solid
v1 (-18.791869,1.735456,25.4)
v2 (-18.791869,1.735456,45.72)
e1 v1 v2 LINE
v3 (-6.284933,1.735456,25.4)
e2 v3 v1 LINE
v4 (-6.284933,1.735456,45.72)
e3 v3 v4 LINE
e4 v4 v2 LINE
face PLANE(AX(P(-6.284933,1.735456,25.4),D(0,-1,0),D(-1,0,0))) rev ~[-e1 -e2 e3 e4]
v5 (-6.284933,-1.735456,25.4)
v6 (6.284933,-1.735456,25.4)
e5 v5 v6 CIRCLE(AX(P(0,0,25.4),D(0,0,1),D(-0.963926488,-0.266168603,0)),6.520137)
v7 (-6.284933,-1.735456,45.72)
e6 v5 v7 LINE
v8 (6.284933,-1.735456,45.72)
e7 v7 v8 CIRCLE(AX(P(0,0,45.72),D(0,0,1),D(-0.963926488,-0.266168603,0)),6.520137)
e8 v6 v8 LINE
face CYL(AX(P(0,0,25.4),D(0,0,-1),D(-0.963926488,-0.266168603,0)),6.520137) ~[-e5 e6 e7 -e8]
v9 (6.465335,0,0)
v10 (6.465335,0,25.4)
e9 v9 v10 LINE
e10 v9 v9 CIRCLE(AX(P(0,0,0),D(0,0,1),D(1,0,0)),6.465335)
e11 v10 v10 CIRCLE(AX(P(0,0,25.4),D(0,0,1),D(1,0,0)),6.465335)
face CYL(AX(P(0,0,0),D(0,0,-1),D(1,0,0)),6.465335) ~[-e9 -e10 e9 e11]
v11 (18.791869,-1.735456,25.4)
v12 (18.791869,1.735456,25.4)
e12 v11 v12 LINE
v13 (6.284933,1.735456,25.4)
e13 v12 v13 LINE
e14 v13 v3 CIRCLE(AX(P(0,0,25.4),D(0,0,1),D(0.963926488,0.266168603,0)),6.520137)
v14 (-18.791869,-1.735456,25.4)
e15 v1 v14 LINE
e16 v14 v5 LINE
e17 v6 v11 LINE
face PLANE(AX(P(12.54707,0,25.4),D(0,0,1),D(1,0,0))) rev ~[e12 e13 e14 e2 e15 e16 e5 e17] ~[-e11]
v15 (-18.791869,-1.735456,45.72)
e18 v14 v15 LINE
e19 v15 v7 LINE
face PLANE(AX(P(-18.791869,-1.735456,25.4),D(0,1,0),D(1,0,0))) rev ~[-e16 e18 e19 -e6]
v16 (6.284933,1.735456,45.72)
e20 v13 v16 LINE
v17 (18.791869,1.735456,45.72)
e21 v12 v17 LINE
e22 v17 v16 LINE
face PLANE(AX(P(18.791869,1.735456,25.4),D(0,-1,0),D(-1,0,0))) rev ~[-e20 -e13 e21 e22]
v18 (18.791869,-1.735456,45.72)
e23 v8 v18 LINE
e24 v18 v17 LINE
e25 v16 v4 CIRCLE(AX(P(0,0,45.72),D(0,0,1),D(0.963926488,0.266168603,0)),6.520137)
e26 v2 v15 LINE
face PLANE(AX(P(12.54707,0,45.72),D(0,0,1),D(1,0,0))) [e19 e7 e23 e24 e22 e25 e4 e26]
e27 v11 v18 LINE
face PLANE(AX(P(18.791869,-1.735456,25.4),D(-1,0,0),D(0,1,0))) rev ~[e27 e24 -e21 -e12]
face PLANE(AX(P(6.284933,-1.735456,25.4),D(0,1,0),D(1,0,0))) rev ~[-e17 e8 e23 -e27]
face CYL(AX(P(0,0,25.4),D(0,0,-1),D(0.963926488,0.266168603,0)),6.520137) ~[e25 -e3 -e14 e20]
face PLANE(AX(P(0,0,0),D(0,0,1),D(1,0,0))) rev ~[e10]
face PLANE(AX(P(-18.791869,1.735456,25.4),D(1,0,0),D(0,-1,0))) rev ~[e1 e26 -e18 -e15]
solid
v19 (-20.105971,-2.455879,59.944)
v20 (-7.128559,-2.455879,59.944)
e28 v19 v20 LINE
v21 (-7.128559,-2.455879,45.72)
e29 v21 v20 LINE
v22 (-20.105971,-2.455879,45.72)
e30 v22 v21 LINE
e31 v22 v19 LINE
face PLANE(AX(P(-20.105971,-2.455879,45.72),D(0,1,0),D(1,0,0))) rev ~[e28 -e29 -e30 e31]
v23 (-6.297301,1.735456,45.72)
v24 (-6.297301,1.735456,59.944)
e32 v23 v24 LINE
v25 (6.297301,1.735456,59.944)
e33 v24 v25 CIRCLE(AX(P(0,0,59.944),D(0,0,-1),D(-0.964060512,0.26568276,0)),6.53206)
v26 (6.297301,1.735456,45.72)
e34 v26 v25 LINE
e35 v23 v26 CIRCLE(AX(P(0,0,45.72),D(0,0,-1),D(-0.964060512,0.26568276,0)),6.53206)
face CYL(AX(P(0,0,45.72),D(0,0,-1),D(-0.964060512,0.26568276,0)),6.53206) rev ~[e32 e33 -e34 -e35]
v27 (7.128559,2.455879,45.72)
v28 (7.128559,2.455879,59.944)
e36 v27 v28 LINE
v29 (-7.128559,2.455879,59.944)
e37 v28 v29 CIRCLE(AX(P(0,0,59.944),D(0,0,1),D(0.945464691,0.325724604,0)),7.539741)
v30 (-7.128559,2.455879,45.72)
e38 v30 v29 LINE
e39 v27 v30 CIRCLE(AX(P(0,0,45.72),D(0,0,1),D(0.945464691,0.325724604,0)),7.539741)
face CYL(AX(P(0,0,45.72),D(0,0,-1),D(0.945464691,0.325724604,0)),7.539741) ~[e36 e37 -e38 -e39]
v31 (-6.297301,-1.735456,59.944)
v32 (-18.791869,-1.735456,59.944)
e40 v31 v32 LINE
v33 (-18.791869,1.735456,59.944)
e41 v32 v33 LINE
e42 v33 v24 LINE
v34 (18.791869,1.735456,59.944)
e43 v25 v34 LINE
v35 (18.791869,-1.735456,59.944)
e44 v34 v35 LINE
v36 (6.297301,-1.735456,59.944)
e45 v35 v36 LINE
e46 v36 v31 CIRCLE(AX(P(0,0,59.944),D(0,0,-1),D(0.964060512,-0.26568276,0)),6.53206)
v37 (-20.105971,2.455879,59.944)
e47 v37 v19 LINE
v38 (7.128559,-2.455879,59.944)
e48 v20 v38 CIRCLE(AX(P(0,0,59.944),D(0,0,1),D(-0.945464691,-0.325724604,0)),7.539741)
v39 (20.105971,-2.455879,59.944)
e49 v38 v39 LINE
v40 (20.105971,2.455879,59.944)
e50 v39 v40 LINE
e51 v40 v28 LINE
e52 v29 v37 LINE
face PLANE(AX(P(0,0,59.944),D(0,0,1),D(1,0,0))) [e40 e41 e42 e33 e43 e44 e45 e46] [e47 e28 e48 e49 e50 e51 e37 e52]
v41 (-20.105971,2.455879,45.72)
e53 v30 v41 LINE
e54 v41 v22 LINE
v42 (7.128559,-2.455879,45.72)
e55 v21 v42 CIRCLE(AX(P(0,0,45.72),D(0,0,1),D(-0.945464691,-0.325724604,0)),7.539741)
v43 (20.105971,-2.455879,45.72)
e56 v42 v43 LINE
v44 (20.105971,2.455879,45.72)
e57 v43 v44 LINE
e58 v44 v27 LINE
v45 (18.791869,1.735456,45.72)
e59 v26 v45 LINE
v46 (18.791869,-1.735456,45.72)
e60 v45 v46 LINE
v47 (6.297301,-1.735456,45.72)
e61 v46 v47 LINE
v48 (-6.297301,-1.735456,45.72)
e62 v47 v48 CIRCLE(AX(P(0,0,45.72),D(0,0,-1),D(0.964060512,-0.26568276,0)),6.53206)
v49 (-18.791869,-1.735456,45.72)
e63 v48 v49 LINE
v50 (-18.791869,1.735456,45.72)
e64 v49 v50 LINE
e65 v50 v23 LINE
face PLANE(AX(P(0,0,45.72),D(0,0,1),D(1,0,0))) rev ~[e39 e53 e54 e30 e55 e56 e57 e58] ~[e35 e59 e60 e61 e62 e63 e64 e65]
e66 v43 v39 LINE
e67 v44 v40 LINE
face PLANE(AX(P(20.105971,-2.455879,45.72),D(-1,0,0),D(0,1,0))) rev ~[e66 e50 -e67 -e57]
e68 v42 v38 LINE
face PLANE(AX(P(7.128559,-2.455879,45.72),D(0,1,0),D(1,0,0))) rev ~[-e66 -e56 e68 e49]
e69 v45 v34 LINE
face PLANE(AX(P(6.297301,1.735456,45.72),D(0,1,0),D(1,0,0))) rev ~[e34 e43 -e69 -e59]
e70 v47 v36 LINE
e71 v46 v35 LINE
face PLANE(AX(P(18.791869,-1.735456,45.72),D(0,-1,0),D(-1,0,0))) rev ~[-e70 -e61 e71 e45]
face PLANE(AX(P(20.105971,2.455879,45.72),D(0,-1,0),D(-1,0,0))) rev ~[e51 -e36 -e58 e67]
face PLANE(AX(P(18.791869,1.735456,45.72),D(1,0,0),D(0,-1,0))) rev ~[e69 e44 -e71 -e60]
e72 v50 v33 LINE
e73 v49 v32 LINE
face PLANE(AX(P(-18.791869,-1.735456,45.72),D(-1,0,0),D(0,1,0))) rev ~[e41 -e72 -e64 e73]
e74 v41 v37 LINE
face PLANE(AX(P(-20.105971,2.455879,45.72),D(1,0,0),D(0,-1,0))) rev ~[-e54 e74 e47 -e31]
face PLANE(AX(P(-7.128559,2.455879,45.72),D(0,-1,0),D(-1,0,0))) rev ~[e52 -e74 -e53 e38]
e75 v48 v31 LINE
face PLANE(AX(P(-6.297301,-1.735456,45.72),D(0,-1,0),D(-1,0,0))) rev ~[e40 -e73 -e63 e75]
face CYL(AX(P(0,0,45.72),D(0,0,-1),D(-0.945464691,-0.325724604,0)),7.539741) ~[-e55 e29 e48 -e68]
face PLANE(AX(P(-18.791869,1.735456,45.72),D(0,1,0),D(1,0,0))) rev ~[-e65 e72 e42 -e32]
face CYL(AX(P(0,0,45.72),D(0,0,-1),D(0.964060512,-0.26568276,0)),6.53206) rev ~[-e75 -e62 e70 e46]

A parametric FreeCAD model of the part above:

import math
import FreeCAD as App
import Part
import Sketcher
Q = App.Units.Quantity

doc = App.newDocument("Part")
body = doc.addObject("PartDesign::Body", "Body")

# Sketch on XY plane
sketch1 = body.newObject("Sketcher::SketchObject", "Sketch")
sketch1.AttachmentSupport = (doc.getObject("XY_Plane"), [""])
sketch1.MapMode = "FlatFace"
sketch1.addGeometry(Part.Circle(App.Vector(0, 0, 0), App.Vector(0, 0, 1), 6), False)
sketch1.addConstraint([
    Sketcher.Constraint("Coincident", 0, 3, -1, 1),
    Sketcher.Constraint("Diameter", 0, Q("12.930669 mm")),
])
pad1 = body.newObject("PartDesign::Pad", "Pad")
pad1.Profile = sketch1
pad1.Length = Q("1 in")

# Sketch on XY plane
sketch2 = body.newObject("Sketcher::SketchObject", "Sketch001")
sketch2.AttachmentSupport = (doc.getObject("XY_Plane"), [""])
sketch2.MapMode = "FlatFace"
sketch2.AttachmentOffset = App.Placement(App.Vector(0, 0, 1 * 25.4), App.Rotation())
sketch2.addGeometry([
    Part.LineSegment(App.Vector(6.3, -1.7, 0), App.Vector(18.8, -1.7, 0)),  # 0
    Part.LineSegment(App.Vector(18.8, -1.7, 0), App.Vector(18.8, 1.7, 0)),  # 1
    Part.LineSegment(App.Vector(18.8, 1.7, 0), App.Vector(6.3, 1.7, 0)),  # 2
    Part.ArcOfCircle(Part.Circle(App.Vector(0, 0, 0), App.Vector(0, 0, 1), 6.5), math.radians(15), math.radians(165)),  # 3
    Part.LineSegment(App.Vector(-6.3, 1.7, 0), App.Vector(-18.8, 1.7, 0)),  # 4
    Part.LineSegment(App.Vector(-18.8, 1.7, 0), App.Vector(-18.8, -1.7, 0)),  # 5
    Part.LineSegment(App.Vector(-18.8, -1.7, 0), App.Vector(-6.3, -1.7, 0)),  # 6
    Part.ArcOfCircle(Part.Circle(App.Vector(0, 0, 0), App.Vector(0, 0, 1), 6.5), math.radians(-165), math.radians(-15)),  # 7
], False)
sketch2.addConstraint([
    Sketcher.Constraint("Coincident", 0, 2, 1, 1),
    Sketcher.Constraint("Coincident", 1, 2, 2, 1),
    Sketcher.Constraint("Coincident", 2, 2, 3, 1),
    Sketcher.Constraint("Coincident", 3, 2, 4, 1),
    Sketcher.Constraint("Coincident", 4, 2, 5, 1),
    Sketcher.Constraint("Coincident", 5, 2, 6, 1),
    Sketcher.Constraint("Coincident", 6, 2, 7, 1),
    Sketcher.Constraint("Coincident", 7, 2, 0, 1),
    Sketcher.Constraint("Horizontal", 0),
    Sketcher.Constraint("Vertical", 1),
    Sketcher.Constraint("Horizontal", 2),
    Sketcher.Constraint("Horizontal", 4),
    Sketcher.Constraint("Vertical", 5),
    Sketcher.Constraint("Horizontal", 6),
    Sketcher.Constraint("Coincident", 3, 3, -1, 1),
    Sketcher.Constraint("Coincident", 7, 3, -1, 1),
    Sketcher.Constraint("Equal", 3, 7),
    Sketcher.Constraint("Symmetric", 0, 2, 4, 2, -1, 1),
    Sketcher.Constraint("Horizontal", 2, 2, 3, 2),
    Sketcher.Constraint("Horizontal", 0, 2, 5, 2),
    Sketcher.Constraint("Radius", 3, Q("6.520137 mm")),
    Sketcher.Constraint("DistanceY", 1, 1, 1, 2, Q("3.470912 mm")),
    Sketcher.Constraint("DistanceX", 0, 1, 0, 2, Q("12.506936 mm")),
])
pad2 = body.newObject("PartDesign::Pad", "Pad001")
pad2.Profile = sketch2
pad2.Length = Q("0.8 in")
body2 = doc.addObject("PartDesign::Body", "Body001")

# Sketch on XY plane
sketch3 = body2.newObject("Sketcher::SketchObject", "Sketch002")
sketch3.AttachmentSupport = (doc.getObject("XY_Plane001"), [""])
sketch3.MapMode = "FlatFace"
sketch3.AttachmentOffset = App.Placement(App.Vector(0, 0, 1.8 * 25.4), App.Rotation())
sketch3.addGeometry([
    Part.LineSegment(App.Vector(-20.1, -2.5, 0), App.Vector(-7.1, -2.5, 0)),  # 0
    Part.ArcOfCircle(Part.Circle(App.Vector(0, 0, 0), App.Vector(0, 0, 1), 7.5), math.radians(-161), math.radians(-19)),  # 1
    Part.LineSegment(App.Vector(7.1, -2.5, 0), App.Vector(20.1, -2.5, 0)),  # 2
    Part.LineSegment(App.Vector(20.1, -2.5, 0), App.Vector(20.1, 2.5, 0)),  # 3
    Part.LineSegment(App.Vector(20.1, 2.5, 0), App.Vector(7.1, 2.5, 0)),  # 4
    Part.ArcOfCircle(Part.Circle(App.Vector(0, 0, 0), App.Vector(0, 0, 1), 7.5), math.radians(19), math.radians(161)),  # 5
    Part.LineSegment(App.Vector(-7.1, 2.5, 0), App.Vector(-20.1, 2.5, 0)),  # 6
    Part.LineSegment(App.Vector(-20.1, 2.5, 0), App.Vector(-20.1, -2.5, 0)),  # 7
    Part.LineSegment(App.Vector(-18.8, 1.7, 0), App.Vector(-6.3, 1.7, 0)),  # 8
    Part.ArcOfCircle(Part.Circle(App.Vector(0, 0, 0), App.Vector(0, 0, 1), 6.5), math.radians(15), math.radians(165)),  # 9
    Part.LineSegment(App.Vector(6.3, 1.7, 0), App.Vector(18.8, 1.7, 0)),  # 10
    Part.LineSegment(App.Vector(18.8, 1.7, 0), App.Vector(18.8, -1.7, 0)),  # 11
    Part.LineSegment(App.Vector(18.8, -1.7, 0), App.Vector(6.3, -1.7, 0)),  # 12
    Part.ArcOfCircle(Part.Circle(App.Vector(0, 0, 0), App.Vector(0, 0, 1), 6.5), math.radians(-165), math.radians(-15)),  # 13
    Part.LineSegment(App.Vector(-6.3, -1.7, 0), App.Vector(-18.8, -1.7, 0)),  # 14
    Part.LineSegment(App.Vector(-18.8, -1.7, 0), App.Vector(-18.8, 1.7, 0)),  # 15
], False)
sketch3.addConstraint([
    Sketcher.Constraint("Coincident", 0, 2, 1, 1),
    Sketcher.Constraint("Coincident", 1, 2, 2, 1),
    Sketcher.Constraint("Coincident", 2, 2, 3, 1),
    Sketcher.Constraint("Coincident", 3, 2, 4, 1),
    Sketcher.Constraint("Coincident", 4, 2, 5, 1),
    Sketcher.Constraint("Coincident", 5, 2, 6, 1),
    Sketcher.Constraint("Coincident", 6, 2, 7, 1),
    Sketcher.Constraint("Coincident", 7, 2, 0, 1),
    Sketcher.Constraint("Coincident", 8, 2, 9, 2),
    Sketcher.Constraint("Coincident", 9, 1, 10, 1),
    Sketcher.Constraint("Coincident", 10, 2, 11, 1),
    Sketcher.Constraint("Coincident", 11, 2, 12, 1),
    Sketcher.Constraint("Coincident", 12, 2, 13, 2),
    Sketcher.Constraint("Coincident", 13, 1, 14, 1),
    Sketcher.Constraint("Coincident", 14, 2, 15, 1),
    Sketcher.Constraint("Coincident", 15, 2, 8, 1),
    Sketcher.Constraint("Horizontal", 0),
    Sketcher.Constraint("Horizontal", 2),
    Sketcher.Constraint("Vertical", 3),
    Sketcher.Constraint("Horizontal", 4),
    Sketcher.Constraint("Horizontal", 6),
    Sketcher.Constraint("Vertical", 7),
    Sketcher.Constraint("Horizontal", 8),
    Sketcher.Constraint("Horizontal", 10),
    Sketcher.Constraint("Vertical", 11),
    Sketcher.Constraint("Horizontal", 12),
    Sketcher.Constraint("Horizontal", 14),
    Sketcher.Constraint("Vertical", 15),
    Sketcher.Constraint("Coincident", 1, 3, -1, 1),
    Sketcher.Constraint("Coincident", 5, 3, -1, 1),
    Sketcher.Constraint("Coincident", 9, 3, -1, 1),
    Sketcher.Constraint("Coincident", 13, 3, -1, 1),
    Sketcher.Constraint("Equal", 1, 5),
    Sketcher.Constraint("Equal", 9, 13),
    Sketcher.Constraint("Symmetric", 2, 2, 6, 2, -1, 1),
    Sketcher.Constraint("Symmetric", 10, 2, 14, 2, -1, 1),
    Sketcher.Constraint("Horizontal", 0, 2, 1, 2),
    Sketcher.Constraint("Horizontal", 4, 2, 5, 2),
    Sketcher.Constraint("Horizontal", 8, 2, 9, 1),
    Sketcher.Constraint("Horizontal", 12, 2, 13, 1),
    Sketcher.Constraint("Radius", 1, Q("7.539741 mm")),
    Sketcher.Constraint("Radius", 9, Q("6.53206 mm")),
    Sketcher.Constraint("DistanceX", 0, 1, 0, 2, Q("12.977412 mm")),
    Sketcher.Constraint("DistanceY", 3, 1, 3, 2, Q("4.911758 mm")),
    Sketcher.Constraint("DistanceY", 11, 2, 11, 1, Q("3.470912 mm")),
    Sketcher.Constraint("DistanceX", 10, 2, 3, 2, Q("1.314102 mm")),
])
pad3 = body2.newObject("PartDesign::Pad", "Pad002")
pad3.Profile = sketch3
pad3.Length = Q("0.56 in")

doc.recompute()
